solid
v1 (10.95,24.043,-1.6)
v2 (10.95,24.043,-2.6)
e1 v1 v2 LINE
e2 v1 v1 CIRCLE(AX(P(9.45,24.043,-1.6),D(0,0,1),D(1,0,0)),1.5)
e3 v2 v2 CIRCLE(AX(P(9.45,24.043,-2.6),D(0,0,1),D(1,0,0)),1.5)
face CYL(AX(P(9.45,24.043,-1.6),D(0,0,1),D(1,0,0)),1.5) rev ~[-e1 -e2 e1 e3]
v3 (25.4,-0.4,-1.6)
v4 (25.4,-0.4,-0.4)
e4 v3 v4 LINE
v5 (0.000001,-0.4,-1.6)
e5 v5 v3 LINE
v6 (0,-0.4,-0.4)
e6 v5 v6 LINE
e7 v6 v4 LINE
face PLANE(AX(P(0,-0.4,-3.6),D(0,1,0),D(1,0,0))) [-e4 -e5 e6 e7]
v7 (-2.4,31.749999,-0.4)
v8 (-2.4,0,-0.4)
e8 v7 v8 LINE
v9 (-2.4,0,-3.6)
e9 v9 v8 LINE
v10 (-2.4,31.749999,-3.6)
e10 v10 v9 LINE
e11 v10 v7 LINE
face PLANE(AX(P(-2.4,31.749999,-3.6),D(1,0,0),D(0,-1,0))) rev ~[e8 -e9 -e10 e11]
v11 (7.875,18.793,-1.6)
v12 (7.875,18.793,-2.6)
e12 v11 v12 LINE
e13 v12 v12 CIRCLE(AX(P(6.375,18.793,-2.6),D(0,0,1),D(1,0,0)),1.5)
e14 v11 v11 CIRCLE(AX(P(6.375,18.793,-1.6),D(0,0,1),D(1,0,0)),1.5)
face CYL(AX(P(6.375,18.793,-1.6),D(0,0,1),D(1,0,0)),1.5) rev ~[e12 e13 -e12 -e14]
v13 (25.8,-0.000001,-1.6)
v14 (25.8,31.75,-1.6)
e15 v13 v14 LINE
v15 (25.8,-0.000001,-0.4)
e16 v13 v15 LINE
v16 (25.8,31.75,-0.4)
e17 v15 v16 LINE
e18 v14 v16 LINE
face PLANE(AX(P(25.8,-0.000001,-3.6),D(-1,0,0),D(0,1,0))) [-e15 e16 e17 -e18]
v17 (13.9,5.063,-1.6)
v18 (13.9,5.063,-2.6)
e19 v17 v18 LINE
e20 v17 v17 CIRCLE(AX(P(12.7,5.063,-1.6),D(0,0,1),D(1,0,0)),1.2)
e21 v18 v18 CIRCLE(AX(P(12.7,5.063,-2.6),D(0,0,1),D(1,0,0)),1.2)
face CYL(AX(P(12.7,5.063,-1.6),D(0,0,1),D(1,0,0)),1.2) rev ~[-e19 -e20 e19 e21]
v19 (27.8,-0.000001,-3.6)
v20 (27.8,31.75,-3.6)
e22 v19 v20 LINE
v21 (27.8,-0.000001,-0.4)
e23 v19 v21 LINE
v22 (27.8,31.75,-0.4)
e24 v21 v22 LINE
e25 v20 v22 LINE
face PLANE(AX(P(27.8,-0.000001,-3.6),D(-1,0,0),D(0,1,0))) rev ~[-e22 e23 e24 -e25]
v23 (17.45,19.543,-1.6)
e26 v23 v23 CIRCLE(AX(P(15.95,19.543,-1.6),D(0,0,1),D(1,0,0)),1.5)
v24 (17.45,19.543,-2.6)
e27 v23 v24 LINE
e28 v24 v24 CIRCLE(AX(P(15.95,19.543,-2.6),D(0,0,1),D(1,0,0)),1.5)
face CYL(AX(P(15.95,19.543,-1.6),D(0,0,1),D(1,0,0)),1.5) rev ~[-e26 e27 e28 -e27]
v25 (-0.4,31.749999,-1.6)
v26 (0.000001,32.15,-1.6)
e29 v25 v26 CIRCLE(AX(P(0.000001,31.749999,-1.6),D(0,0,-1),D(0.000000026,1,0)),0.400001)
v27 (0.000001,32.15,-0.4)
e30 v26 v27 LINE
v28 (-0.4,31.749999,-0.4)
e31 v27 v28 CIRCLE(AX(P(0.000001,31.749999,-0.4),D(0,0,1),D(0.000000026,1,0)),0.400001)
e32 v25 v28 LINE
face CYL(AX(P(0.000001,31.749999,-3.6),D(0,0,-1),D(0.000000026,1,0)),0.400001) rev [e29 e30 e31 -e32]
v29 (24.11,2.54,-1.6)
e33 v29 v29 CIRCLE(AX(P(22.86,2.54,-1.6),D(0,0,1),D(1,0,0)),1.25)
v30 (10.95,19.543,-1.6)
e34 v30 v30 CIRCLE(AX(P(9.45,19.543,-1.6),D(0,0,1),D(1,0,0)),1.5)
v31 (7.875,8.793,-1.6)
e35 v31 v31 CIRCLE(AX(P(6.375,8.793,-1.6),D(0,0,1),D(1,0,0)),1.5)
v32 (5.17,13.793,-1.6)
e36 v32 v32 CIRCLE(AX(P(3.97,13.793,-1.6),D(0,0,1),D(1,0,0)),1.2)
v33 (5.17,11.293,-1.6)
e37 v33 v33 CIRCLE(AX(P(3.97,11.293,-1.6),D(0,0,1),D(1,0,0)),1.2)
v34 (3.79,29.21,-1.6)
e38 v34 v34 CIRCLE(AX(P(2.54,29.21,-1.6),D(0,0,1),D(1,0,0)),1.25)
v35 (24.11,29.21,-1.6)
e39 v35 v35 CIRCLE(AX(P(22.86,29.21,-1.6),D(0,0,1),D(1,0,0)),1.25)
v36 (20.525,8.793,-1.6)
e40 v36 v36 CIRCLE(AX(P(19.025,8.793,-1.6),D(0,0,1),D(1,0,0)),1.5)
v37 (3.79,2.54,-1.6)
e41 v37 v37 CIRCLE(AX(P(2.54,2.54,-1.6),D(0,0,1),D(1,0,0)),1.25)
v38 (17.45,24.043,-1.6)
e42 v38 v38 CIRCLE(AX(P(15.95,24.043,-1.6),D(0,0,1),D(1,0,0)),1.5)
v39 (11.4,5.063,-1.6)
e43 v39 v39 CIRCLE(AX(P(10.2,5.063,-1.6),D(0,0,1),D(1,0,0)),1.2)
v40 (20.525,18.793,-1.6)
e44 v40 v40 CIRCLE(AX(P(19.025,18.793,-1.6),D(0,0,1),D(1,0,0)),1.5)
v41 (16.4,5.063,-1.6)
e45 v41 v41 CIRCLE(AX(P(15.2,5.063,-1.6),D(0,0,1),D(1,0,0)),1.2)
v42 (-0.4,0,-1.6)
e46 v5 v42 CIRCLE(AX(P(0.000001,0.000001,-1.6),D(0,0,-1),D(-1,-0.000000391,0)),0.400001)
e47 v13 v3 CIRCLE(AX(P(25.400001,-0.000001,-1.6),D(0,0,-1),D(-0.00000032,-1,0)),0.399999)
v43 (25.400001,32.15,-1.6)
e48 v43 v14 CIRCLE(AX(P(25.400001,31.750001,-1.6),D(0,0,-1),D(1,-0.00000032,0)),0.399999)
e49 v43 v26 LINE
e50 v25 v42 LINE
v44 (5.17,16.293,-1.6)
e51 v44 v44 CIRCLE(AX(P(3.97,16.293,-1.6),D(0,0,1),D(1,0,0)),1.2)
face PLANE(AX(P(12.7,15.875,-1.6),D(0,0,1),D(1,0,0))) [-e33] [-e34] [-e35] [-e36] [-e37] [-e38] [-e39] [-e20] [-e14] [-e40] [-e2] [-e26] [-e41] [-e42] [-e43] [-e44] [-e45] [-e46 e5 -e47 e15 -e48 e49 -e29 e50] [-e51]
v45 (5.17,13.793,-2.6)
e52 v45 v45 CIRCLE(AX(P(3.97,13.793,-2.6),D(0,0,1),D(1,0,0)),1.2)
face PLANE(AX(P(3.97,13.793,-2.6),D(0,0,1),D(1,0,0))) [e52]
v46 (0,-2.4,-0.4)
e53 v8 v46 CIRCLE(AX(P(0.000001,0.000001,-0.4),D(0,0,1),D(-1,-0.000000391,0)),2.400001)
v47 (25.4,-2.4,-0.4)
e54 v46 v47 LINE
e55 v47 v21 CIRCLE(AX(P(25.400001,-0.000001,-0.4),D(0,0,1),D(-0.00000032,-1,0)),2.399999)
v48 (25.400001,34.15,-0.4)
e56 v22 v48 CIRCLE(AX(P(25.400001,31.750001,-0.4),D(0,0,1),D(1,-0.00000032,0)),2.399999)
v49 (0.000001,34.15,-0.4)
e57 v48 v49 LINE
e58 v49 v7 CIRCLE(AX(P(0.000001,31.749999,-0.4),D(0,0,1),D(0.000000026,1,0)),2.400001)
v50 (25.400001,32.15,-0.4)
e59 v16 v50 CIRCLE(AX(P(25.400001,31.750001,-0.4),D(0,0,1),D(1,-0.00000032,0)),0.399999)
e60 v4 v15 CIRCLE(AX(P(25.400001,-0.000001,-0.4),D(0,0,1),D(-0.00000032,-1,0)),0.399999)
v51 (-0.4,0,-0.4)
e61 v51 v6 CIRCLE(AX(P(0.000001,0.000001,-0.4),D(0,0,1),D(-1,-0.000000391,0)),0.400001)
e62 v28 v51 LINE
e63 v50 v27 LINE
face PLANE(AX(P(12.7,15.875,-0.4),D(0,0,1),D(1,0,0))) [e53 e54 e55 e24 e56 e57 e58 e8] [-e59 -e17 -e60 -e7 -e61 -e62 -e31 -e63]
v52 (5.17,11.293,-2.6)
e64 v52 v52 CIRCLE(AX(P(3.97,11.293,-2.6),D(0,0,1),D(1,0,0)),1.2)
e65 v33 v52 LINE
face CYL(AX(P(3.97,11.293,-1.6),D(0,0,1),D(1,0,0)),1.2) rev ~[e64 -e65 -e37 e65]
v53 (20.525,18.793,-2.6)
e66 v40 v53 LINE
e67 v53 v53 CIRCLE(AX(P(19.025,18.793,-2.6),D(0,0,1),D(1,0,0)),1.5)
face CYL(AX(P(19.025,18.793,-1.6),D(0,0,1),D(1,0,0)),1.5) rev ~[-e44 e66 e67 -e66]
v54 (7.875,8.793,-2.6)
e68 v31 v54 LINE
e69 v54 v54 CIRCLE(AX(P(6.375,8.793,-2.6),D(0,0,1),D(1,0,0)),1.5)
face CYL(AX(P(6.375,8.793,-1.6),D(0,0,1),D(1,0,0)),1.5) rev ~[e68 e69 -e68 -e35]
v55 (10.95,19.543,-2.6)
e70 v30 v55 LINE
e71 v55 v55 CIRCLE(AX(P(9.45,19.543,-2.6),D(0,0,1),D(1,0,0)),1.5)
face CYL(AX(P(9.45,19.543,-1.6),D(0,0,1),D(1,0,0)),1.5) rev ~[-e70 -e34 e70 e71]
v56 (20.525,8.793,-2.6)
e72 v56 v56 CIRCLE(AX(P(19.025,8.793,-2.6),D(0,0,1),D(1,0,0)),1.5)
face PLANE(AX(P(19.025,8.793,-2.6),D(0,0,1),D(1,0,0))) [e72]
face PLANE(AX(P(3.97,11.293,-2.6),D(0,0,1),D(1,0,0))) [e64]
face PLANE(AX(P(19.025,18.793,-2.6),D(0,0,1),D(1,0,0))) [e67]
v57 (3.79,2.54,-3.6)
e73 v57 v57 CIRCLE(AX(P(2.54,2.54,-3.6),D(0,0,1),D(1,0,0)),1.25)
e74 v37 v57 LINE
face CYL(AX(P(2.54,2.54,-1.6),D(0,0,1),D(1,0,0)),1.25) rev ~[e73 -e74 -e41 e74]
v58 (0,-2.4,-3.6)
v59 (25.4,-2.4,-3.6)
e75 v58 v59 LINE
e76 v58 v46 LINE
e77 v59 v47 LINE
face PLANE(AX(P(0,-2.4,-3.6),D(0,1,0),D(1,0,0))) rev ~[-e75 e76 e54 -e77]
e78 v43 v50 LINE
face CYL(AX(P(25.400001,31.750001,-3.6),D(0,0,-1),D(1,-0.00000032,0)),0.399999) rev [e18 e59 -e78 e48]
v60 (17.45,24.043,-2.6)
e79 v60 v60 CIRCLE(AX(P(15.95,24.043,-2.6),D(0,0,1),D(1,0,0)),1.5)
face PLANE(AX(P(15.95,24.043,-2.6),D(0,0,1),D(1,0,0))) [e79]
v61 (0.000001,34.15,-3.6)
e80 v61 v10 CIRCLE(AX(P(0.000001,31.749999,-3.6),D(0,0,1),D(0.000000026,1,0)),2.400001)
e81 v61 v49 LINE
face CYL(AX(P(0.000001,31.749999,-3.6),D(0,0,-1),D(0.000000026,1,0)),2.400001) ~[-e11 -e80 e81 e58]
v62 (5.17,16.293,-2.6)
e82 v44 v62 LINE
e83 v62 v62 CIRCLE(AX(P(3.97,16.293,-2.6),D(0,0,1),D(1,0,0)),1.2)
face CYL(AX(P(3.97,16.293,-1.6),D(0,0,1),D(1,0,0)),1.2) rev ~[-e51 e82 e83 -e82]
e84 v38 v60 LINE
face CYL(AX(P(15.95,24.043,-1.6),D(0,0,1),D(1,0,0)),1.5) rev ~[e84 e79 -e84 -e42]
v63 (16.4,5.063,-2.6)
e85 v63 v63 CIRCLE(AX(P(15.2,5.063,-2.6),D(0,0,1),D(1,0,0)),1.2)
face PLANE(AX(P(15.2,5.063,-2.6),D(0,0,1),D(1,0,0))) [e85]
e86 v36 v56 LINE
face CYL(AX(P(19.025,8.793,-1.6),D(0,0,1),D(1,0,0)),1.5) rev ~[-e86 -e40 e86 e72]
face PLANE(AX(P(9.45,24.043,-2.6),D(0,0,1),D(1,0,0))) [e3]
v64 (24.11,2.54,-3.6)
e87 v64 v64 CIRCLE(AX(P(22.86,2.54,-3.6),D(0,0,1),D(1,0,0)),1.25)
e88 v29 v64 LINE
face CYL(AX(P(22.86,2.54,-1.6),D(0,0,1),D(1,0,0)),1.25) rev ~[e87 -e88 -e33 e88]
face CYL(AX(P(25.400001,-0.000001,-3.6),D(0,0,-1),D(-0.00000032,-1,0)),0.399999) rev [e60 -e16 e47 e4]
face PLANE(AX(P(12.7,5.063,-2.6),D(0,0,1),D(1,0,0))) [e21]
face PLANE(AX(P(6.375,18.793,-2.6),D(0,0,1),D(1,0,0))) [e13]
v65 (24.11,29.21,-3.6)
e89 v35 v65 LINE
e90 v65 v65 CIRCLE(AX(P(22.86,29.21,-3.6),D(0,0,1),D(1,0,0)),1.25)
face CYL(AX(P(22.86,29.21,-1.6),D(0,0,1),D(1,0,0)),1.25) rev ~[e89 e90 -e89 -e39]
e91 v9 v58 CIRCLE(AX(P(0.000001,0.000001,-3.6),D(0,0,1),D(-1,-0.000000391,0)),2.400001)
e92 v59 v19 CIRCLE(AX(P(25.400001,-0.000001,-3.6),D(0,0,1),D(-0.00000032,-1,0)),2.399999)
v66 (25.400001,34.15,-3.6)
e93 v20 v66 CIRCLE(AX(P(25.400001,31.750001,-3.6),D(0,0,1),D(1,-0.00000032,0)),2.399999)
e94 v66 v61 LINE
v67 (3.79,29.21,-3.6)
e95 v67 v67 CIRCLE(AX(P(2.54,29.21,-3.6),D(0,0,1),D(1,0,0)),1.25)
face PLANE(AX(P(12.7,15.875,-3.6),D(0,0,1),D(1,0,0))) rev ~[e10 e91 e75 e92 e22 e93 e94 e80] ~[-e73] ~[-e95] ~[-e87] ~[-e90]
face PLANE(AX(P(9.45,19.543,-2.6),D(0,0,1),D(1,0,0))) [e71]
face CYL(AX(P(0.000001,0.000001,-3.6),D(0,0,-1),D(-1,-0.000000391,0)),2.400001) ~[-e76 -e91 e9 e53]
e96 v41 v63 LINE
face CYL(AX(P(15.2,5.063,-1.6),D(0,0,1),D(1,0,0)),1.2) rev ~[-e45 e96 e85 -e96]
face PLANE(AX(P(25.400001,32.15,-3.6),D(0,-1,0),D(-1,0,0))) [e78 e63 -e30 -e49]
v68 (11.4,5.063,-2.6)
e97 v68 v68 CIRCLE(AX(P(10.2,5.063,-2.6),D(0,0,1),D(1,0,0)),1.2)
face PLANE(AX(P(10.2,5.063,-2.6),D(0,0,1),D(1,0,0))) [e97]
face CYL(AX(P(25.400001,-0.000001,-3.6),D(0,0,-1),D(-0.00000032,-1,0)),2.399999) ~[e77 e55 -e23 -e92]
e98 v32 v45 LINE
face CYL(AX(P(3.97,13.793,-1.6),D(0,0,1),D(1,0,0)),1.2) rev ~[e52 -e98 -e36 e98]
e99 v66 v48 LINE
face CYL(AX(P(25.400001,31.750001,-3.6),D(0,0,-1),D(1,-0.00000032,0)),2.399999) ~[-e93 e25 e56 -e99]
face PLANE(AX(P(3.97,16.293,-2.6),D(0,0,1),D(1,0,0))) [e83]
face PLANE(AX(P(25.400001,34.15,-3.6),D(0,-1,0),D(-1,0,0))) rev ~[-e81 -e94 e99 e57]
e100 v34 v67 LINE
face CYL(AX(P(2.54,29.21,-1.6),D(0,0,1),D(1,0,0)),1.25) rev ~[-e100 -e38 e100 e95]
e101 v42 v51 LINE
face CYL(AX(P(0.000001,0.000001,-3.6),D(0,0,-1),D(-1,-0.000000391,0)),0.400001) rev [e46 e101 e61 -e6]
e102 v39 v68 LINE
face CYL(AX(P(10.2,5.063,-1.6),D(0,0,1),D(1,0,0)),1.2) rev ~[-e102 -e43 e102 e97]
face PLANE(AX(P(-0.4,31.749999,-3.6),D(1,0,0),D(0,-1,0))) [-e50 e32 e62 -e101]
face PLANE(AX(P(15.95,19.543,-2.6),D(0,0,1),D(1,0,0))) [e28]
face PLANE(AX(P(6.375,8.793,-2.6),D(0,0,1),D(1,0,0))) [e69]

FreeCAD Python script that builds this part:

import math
import FreeCAD as App
import Part
import Sketcher
Q = App.Units.Quantity


def faces_at(feature, points):
    """Names of the faces that lie closest to the given points."""
    faces = feature.Shape.Faces
    near = lambda p: min(range(len(faces)), key=lambda i: faces[i].distToShape(Part.Vertex(*p))[0])
    return sorted({f"Face{near(p) + 1}" for p in points})

doc = App.newDocument("Part")
params = doc.addObject("Spreadsheet::Sheet", "Params")
for row, (alias, value) in enumerate([
    ("sketch1_radius", "2.400001 mm"),
    ("sketch1_width", "25.4 mm"),
    ("sketch1_height", "31.749999 mm"),
    ("pad1_length", "3.2 mm"),
    ("thickness_wall", "2 mm"),
    ("sketch2_diameter", "2.5 mm"),
    ("sketch3_diameter", "3 mm"),
    ("sketch3_diameter2", "2.4 mm"),
    ("pocket2_length", "1 mm"),
], start=1):
    params.set(f"A{row}", alias)
    params.set(f"B{row}", "=" + value)
    params.setAlias(f"B{row}", alias)

body = doc.addObject("PartDesign::Body", "Body")

# Sketch on XY plane
sketch1 = body.newObject("Sketcher::SketchObject", "Sketch")
sketch1.AttachmentSupport = (doc.getObject("XY_Plane"), [""])
sketch1.MapMode = "FlatFace"
sketch1.addGeometry([
    Part.LineSegment(App.Vector(-2.4, 31.7, 0), App.Vector(-2.4, 0, 0)),  # 0
    Part.ArcOfCircle(Part.Circle(App.Vector(0, 0, 0), App.Vector(0, 0, 1), 2.4), math.radians(-180), math.radians(-90)),  # 1
    Part.LineSegment(App.Vector(0, -2.4, 0), App.Vector(25.4, -2.4, 0)),  # 2
    Part.ArcOfCircle(Part.Circle(App.Vector(25.4, 0, 0), App.Vector(0, 0, 1), 2.4), math.radians(-90), math.radians(0)),  # 3
    Part.LineSegment(App.Vector(27.8, 0, 0), App.Vector(27.8, 31.8, 0)),  # 4
    Part.ArcOfCircle(Part.Circle(App.Vector(25.4, 31.8, 0), App.Vector(0, 0, 1), 2.4), math.radians(0), math.radians(90)),  # 5
    Part.LineSegment(App.Vector(25.4, 34.1, 0), App.Vector(0, 34.1, 0)),  # 6
    Part.ArcOfCircle(Part.Circle(App.Vector(0, 31.7, 0), App.Vector(0, 0, 1), 2.4), math.radians(90), math.radians(180)),  # 7
], False)
sketch1.addConstraint([
    Sketcher.Constraint("Tangent", 0, 2, 1, 1),
    Sketcher.Constraint("Tangent", 1, 2, 2, 1),
    Sketcher.Constraint("Tangent", 2, 2, 3, 1),
    Sketcher.Constraint("Tangent", 3, 2, 4, 1),
    Sketcher.Constraint("Tangent", 4, 2, 5, 1),
    Sketcher.Constraint("Tangent", 5, 2, 6, 1),
    Sketcher.Constraint("Tangent", 6, 2, 7, 1),
    Sketcher.Constraint("Tangent", 7, 2, 0, 1),
    Sketcher.Constraint("Vertical", 0),
    Sketcher.Constraint("Horizontal", 2),
    Sketcher.Constraint("Vertical", 4),
    Sketcher.Constraint("Horizontal", 6),
    Sketcher.Constraint("Coincident", 1, 3, -1, 1),
    Sketcher.Constraint("Equal", 1, 3),
    Sketcher.Constraint("Equal", 3, 5),
    Sketcher.Constraint("Equal", 5, 7),
    Sketcher.Constraint("Radius", 1, Q("2.400001 mm")),
    Sketcher.Constraint("DistanceX", 2, 1, 2, 2, Q("25.4 mm")),
    Sketcher.Constraint("DistanceY", 0, 2, 0, 1, Q("31.749999 mm")),
])
sketch1.setExpression("Constraints[16]", "Params.sketch1_radius")
sketch1.setExpression("Constraints[17]", "Params.sketch1_width")
sketch1.setExpression("Constraints[18]", "Params.sketch1_height")
pad1 = body.newObject("PartDesign::Pad", "Pad")
pad1.Profile = sketch1
pad1.setExpression("Length", "Params.pad1_length")
doc.recompute()

thickness = body.newObject("PartDesign::Thickness", "Thickness")
thickness.Base = (pad1, faces_at(pad1, [(12.7, 15.875, 3.2)]))
thickness.setExpression("Value", "Params.thickness_wall")
thickness.Reversed = True
thickness.Join = "Arc"

# Sketch on XY plane
sketch2 = body.newObject("Sketcher::SketchObject", "Sketch001")
sketch2.AttachmentSupport = (doc.getObject("XY_Plane"), [""])
sketch2.MapMode = "FlatFace"
sketch2.AttachmentOffset = App.Placement(App.Vector(0, 0, 2), App.Rotation())
sketch2.addGeometry([
    Part.Circle(App.Vector(2.5, 29.2, 0), App.Vector(0, 0, 1), 1.2),
    Part.Circle(App.Vector(22.9, 29.2, 0), App.Vector(0, 0, 1), 1.2),
    Part.Circle(App.Vector(22.9, 2.5, 0), App.Vector(0, 0, 1), 1.2),
    Part.Circle(App.Vector(2.5, 2.5, 0), App.Vector(0, 0, 1), 1.2),
], False)
sketch2.addConstraint([
    Sketcher.Constraint("Equal", 0, 1),
    Sketcher.Constraint("Equal", 1, 2),
    Sketcher.Constraint("Equal", 2, 3),
    Sketcher.Constraint("Horizontal", 0, 3, 1, 3),
    Sketcher.Constraint("Horizontal", 2, 3, 3, 3),
    Sketcher.Constraint("Vertical", 1, 3, 2, 3),
    Sketcher.Constraint("Vertical", 0, 3, 3, 3),
    Sketcher.Constraint("Diameter", 0, Q("2.5 mm")),
    Sketcher.Constraint("DistanceX", -1, 1, 0, 3, Q("2.54 mm")),
    Sketcher.Constraint("DistanceY", -1, 1, 0, 3, Q("29.21 mm")),
    Sketcher.Constraint("DistanceX", -1, 1, 1, 3, Q("22.86 mm")),
    Sketcher.Constraint("DistanceY", -1, 1, 2, 3, Q("2.54 mm")),
])
sketch2.setExpression("Constraints[7]", "Params.sketch2_diameter")
pocket1 = body.newObject("PartDesign::Pocket", "Pocket")
pocket1.Profile = sketch2
pocket1.Type = "ThroughAll"

# Sketch on XY plane
sketch3 = body.newObject("Sketcher::SketchObject", "Sketch002")
sketch3.AttachmentSupport = (doc.getObject("XY_Plane"), [""])
sketch3.MapMode = "FlatFace"
sketch3.AttachmentOffset = App.Placement(App.Vector(0, 0, 2), App.Rotation())
sketch3.addGeometry([
    Part.Circle(App.Vector(9.4, 24, 0), App.Vector(0, 0, 1), 1.5),  # 0
    Part.Circle(App.Vector(15.9, 24, 0), App.Vector(0, 0, 1), 1.5),  # 1
    Part.Circle(App.Vector(15.9, 19.5, 0), App.Vector(0, 0, 1), 1.5),  # 2
    Part.Circle(App.Vector(19, 18.8, 0), App.Vector(0, 0, 1), 1.5),  # 3
    Part.Circle(App.Vector(19, 8.8, 0), App.Vector(0, 0, 1), 1.5),  # 4
    Part.Circle(App.Vector(9.4, 19.5, 0), App.Vector(0, 0, 1), 1.5),  # 5
    Part.Circle(App.Vector(6.4, 18.8, 0), App.Vector(0, 0, 1), 1.5),  # 6
    Part.Circle(App.Vector(6.4, 8.8, 0), App.Vector(0, 0, 1), 1.5),  # 7
    Part.Circle(App.Vector(4, 16.3, 0), App.Vector(0, 0, 1), 1.2),  # 8
    Part.Circle(App.Vector(4, 13.8, 0), App.Vector(0, 0, 1), 1.2),  # 9
    Part.Circle(App.Vector(4, 11.3, 0), App.Vector(0, 0, 1), 1.2),  # 10
    Part.Circle(App.Vector(10.2, 5.1, 0), App.Vector(0, 0, 1), 1.2),  # 11
    Part.Circle(App.Vector(12.7, 5.1, 0), App.Vector(0, 0, 1), 1.2),  # 12
    Part.Circle(App.Vector(15.2, 5.1, 0), App.Vector(0, 0, 1), 1.2),  # 13
], False)
sketch3.addConstraint([
    Sketcher.Constraint("Equal", 0, 1),
    Sketcher.Constraint("Equal", 1, 2),
    Sketcher.Constraint("Equal", 2, 3),
    Sketcher.Constraint("Equal", 3, 4),
    Sketcher.Constraint("Equal", 4, 5),
    Sketcher.Constraint("Equal", 5, 6),
    Sketcher.Constraint("Equal", 6, 7),
    Sketcher.Constraint("Equal", 8, 9),
    Sketcher.Constraint("Equal", 9, 10),
    Sketcher.Constraint("Equal", 10, 11),
    Sketcher.Constraint("Equal", 11, 12),
    Sketcher.Constraint("Equal", 12, 13),
    Sketcher.Constraint("Horizontal", 0, 3, 1, 3),
    Sketcher.Constraint("Horizontal", 2, 3, 5, 3),
    Sketcher.Constraint("Horizontal", 3, 3, 6, 3),
    Sketcher.Constraint("Horizontal", 4, 3, 7, 3),
    Sketcher.Constraint("Horizontal", 11, 3, 12, 3),
    Sketcher.Constraint("Horizontal", 12, 3, 13, 3),
    Sketcher.Constraint("Vertical", 1, 3, 2, 3),
    Sketcher.Constraint("Vertical", 3, 3, 4, 3),
    Sketcher.Constraint("Vertical", 0, 3, 5, 3),
    Sketcher.Constraint("Vertical", 6, 3, 7, 3),
    Sketcher.Constraint("Vertical", 8, 3, 9, 3),
    Sketcher.Constraint("Vertical", 9, 3, 10, 3),
    Sketcher.Constraint("Diameter", 0, Q("3 mm")),
    Sketcher.Constraint("Diameter", 8, Q("2.4 mm")),
    Sketcher.Constraint("DistanceY", 4, 3, 3, 3, Q("10 mm")),
    Sketcher.Constraint("DistanceY", 9, 3, 6, 3, Q("5 mm")),
    Sketcher.Constraint("DistanceY", 10, 3, 8, 3, Q("5 mm")),
    Sketcher.Constraint("DistanceX", 11, 3, 13, 3, Q("5 mm")),
    Sketcher.Constraint("DistanceX", -1, 1, 11, 3, Q("10.2 mm")),
    Sketcher.Constraint("DistanceX", -1, 1, 12, 3, Q("12.7 mm")),
    Sketcher.Constraint("DistanceX", 0, 3, 1, 3, Q("6.5 mm")),
    Sketcher.Constraint("DistanceY", 2, 3, 1, 3, Q("4.5 mm")),
    Sketcher.Constraint("DistanceY", 8, 3, 6, 3, Q("2.5 mm")),
    Sketcher.Constraint("DistanceX", -1, 1, 0, 3, Q("9.45 mm")),
    Sketcher.Constraint("DistanceX", -1, 1, 8, 3, Q("3.97 mm")),
    Sketcher.Constraint("DistanceY", 3, 3, 2, 3, Q("0.75 mm")),
    Sketcher.Constraint("DistanceX", 6, 3, 3, 3, Q("12.65 mm")),
    Sketcher.Constraint("DistanceY", 11, 3, 7, 3, Q("3.73 mm")),
    Sketcher.Constraint("DistanceY", -1, 1, 0, 3, Q("24.043 mm")),
    Sketcher.Constraint("DistanceX", -1, 1, 3, 3, Q("19.025 mm")),
])
sketch3.setExpression("Constraints[24]", "Params.sketch3_diameter")
sketch3.setExpression("Constraints[25]", "Params.sketch3_diameter2")
pocket2 = body.newObject("PartDesign::Pocket", "Pocket001")
pocket2.Profile = sketch3
pocket2.setExpression("Length", "Params.pocket2_length")
body2 = doc.addObject("PartDesign::Body", "Body001")
doc.recompute()

body.Placement = App.Placement(App.Vector(0, 0, -3.6), App.Rotation(App.Vector(0, 0, 1), 0))
boolean = body2.newObject("PartDesign::Boolean", "Boolean")
boolean.Type = "Fuse"
boolean.addObjects([body])

doc.recompute()
